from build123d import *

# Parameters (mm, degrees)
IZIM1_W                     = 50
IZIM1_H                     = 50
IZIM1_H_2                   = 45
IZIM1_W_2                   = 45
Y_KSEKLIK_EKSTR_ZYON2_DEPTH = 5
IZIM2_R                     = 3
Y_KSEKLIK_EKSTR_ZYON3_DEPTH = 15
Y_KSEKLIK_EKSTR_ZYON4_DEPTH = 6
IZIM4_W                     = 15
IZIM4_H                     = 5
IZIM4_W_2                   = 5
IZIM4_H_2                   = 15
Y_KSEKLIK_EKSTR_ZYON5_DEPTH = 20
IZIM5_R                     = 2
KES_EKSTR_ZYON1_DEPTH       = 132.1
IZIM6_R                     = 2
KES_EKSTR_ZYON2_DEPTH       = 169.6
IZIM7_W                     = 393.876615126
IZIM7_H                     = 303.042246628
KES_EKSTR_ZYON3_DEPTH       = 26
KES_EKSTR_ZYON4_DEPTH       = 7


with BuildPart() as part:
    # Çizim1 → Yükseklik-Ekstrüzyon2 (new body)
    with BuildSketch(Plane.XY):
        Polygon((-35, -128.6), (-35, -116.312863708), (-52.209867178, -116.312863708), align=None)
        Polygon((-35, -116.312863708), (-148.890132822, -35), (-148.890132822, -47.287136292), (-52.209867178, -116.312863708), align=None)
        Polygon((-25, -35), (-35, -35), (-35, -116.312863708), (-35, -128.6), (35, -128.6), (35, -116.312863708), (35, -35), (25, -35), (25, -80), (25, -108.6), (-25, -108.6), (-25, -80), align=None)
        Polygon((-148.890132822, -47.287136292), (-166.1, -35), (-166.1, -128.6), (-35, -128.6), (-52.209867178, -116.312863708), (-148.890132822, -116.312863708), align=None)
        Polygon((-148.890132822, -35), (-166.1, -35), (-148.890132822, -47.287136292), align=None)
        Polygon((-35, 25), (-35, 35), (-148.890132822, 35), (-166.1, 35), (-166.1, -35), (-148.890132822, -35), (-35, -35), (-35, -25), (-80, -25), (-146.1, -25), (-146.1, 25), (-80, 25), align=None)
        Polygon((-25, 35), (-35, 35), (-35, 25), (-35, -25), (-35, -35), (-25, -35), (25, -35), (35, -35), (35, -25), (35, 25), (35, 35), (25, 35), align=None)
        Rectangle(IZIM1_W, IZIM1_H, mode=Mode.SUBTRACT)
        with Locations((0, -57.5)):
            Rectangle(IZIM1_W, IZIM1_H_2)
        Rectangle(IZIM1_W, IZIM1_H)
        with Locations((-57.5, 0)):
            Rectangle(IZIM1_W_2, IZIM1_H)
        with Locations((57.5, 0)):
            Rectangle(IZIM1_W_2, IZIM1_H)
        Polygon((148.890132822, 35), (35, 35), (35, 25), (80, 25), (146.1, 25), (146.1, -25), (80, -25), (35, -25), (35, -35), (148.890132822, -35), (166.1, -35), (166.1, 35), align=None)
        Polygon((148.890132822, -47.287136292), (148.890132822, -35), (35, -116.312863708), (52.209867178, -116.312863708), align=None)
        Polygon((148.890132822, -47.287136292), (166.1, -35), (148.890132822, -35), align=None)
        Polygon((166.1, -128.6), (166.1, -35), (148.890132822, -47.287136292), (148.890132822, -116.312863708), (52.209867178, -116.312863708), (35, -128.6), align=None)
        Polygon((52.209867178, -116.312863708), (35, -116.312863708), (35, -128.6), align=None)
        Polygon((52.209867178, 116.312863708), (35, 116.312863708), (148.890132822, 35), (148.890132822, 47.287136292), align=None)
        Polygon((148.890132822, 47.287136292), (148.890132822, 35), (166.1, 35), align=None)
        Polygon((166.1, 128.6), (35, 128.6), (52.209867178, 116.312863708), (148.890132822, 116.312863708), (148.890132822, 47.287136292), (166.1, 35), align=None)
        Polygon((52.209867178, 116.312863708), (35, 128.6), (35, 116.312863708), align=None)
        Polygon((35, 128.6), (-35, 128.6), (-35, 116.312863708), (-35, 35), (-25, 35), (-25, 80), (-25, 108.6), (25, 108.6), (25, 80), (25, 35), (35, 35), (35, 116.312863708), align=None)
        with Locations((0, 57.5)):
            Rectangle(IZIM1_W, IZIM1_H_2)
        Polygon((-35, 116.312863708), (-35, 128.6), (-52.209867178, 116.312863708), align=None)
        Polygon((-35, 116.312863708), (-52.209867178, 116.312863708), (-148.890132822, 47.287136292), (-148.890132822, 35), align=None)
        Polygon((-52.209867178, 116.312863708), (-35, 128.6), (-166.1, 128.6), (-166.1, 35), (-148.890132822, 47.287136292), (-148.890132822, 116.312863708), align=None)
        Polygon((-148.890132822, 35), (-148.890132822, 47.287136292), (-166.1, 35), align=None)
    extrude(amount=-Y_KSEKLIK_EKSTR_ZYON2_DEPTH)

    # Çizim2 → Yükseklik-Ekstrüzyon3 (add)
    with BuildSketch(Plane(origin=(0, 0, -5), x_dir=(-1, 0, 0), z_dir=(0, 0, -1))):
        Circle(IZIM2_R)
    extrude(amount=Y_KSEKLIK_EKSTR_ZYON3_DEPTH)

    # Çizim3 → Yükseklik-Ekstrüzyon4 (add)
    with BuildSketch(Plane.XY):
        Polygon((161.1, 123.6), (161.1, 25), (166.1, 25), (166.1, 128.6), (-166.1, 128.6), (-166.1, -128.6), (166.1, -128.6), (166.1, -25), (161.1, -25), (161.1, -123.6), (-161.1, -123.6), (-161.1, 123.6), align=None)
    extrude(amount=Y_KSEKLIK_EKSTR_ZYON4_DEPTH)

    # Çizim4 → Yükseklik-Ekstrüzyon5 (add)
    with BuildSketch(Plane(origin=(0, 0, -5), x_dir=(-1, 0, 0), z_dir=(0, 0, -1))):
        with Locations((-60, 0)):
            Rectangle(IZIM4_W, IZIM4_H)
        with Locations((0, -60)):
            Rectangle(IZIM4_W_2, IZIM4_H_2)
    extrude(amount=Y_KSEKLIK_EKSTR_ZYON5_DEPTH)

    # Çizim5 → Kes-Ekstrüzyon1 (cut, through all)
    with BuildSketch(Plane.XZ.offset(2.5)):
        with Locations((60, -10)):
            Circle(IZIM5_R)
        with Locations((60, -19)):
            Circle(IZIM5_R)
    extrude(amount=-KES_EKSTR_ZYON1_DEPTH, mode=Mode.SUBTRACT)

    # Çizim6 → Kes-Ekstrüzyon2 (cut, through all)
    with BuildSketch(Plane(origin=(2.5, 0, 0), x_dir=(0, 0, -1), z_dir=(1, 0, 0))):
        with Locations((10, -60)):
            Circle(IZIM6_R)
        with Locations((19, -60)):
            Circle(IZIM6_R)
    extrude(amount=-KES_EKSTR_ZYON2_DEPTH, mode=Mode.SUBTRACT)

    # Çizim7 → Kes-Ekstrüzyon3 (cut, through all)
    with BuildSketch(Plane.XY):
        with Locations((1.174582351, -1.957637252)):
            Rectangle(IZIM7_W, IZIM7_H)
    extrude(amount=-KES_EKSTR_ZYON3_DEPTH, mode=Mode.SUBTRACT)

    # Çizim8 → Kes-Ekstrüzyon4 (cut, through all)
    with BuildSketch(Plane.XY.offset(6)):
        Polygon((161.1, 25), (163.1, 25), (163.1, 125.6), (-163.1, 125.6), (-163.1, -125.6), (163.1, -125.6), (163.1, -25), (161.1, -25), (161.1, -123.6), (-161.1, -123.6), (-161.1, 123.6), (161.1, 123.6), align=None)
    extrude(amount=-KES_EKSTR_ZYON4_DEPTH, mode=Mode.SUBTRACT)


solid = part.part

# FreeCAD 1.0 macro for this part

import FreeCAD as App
import Part
import Sketcher


def add_polygon(sketch, points):
    """Adds a closed chain of lines whose ends are joined by coincident constraints."""
    first, n = sketch.GeometryCount, len(points)
    for a, b in zip(points, points[1:] + points[:1]):
        sketch.addGeometry(Part.LineSegment(App.Vector(*a, 0), App.Vector(*b, 0)), False)
    for i in range(n):
        sketch.addConstraint(Sketcher.Constraint("Coincident", first + i, 2, first + (i + 1) % n, 1))

doc = App.newDocument("Part")
body = doc.addObject("PartDesign::Body", "Body")

# Sketch on XY plane
sketch1 = body.newObject("Sketcher::SketchObject", "Sketch")
sketch1.AttachmentSupport = (doc.getObject("XY_Plane"), [""])
sketch1.MapMode = "FlatFace"
add_polygon(sketch1, [(-166, 129), (-166, -129), (166, -129), (166, 129)])  # lines 0-3
add_polygon(sketch1, [(-149, -116), (-149, -47), (-52, -116)])  # lines 4-6
add_polygon(sketch1, [(-149, -35), (-35, -35), (-35, -116)])  # lines 7-9
add_polygon(sketch1, [(-25, -109), (-25, -80), (25, -80), (25, -109)])  # lines 10-13
add_polygon(sketch1, [(149, -116), (52, -116), (149, -47)])  # lines 14-16
add_polygon(sketch1, [(149, -35), (35, -116), (35, -35)])  # lines 17-19
add_polygon(sketch1, [(-146, 25), (-80, 25), (-80, -25), (-146, -25)])  # lines 20-23
add_polygon(sketch1, [(-35, 35), (-149, 35), (-35, 116)])  # lines 24-26
add_polygon(sketch1, [(-52, 116), (-149, 47), (-149, 116)])  # lines 27-29
add_polygon(sketch1, [(80, -25), (80, 25), (146, 25), (146, -25)])  # lines 30-33
add_polygon(sketch1, [(-25, 80), (-25, 109), (25, 109), (25, 80)])  # lines 34-37
add_polygon(sketch1, [(35, 116), (149, 35), (35, 35)])  # lines 38-40
add_polygon(sketch1, [(149, 47), (52, 116), (149, 116)])  # lines 41-43
sketch1.addConstraint([
    Sketcher.Constraint("Vertical", 0),
    Sketcher.Constraint("Horizontal", 1),
    Sketcher.Constraint("Vertical", 2),
    Sketcher.Constraint("Horizontal", 3),
    Sketcher.Constraint("Vertical", 4),
    Sketcher.Constraint("Horizontal", 6),
    Sketcher.Constraint("Horizontal", 7),
    Sketcher.Constraint("Vertical", 8),
    Sketcher.Constraint("Vertical", 10),
    Sketcher.Constraint("Horizontal", 11),
    Sketcher.Constraint("Vertical", 12),
    Sketcher.Constraint("Horizontal", 13),
    Sketcher.Constraint("Horizontal", 14),
    Sketcher.Constraint("Vertical", 16),
    Sketcher.Constraint("Vertical", 18),
    Sketcher.Constraint("Horizontal", 19),
    Sketcher.Constraint("Horizontal", 20),
    Sketcher.Constraint("Vertical", 21),
    Sketcher.Constraint("Horizontal", 22),
    Sketcher.Constraint("Vertical", 23),
    Sketcher.Constraint("Horizontal", 24),
    Sketcher.Constraint("Vertical", 26),
    Sketcher.Constraint("Vertical", 28),
    Sketcher.Constraint("Horizontal", 29),
    Sketcher.Constraint("Vertical", 30),
    Sketcher.Constraint("Horizontal", 31),
    Sketcher.Constraint("Vertical", 32),
    Sketcher.Constraint("Horizontal", 33),
    Sketcher.Constraint("Vertical", 34),
    Sketcher.Constraint("Horizontal", 35),
    Sketcher.Constraint("Vertical", 36),
    Sketcher.Constraint("Horizontal", 37),
    Sketcher.Constraint("Horizontal", 39),
    Sketcher.Constraint("Vertical", 40),
    Sketcher.Constraint("Horizontal", 42),
    Sketcher.Constraint("Vertical", 43),
    Sketcher.Constraint("Symmetric", 0, 2, 2, 2, -1, 1),
    Sketcher.Constraint("Symmetric", 19, 2, 24, 2, -1, 1),
    Sketcher.Constraint("Symmetric", 17, 2, 25, 2, -1, 1),
    Sketcher.Constraint("Symmetric", 15, 2, 27, 2, -1, 1),
    Sketcher.Constraint("Symmetric", 14, 2, 29, 2, -1, 1),
    Sketcher.Constraint("Symmetric", 21, 2, 30, 2, -1, 1),
    Sketcher.Constraint("Symmetric", 23, 2, 32, 2, -1, 1),
    Sketcher.Constraint("Symmetric", 12, 2, 34, 2, -1, 1),
    Sketcher.Constraint("Symmetric", 10, 2, 36, 2, -1, 1),
    Sketcher.Constraint("Symmetric", 9, 2, 38, 2, -1, 1),
    Sketcher.Constraint("Symmetric", 8, 2, 40, 2, -1, 1),
    Sketcher.Constraint("Symmetric", 5, 2, 41, 2, -1, 1),
    Sketcher.Constraint("Symmetric", 4, 2, 43, 2, -1, 1),
    Sketcher.Constraint("Symmetric", 5, 2, 14, 2, -2),
    Sketcher.Constraint("Symmetric", 4, 2, 15, 2, -2),
    Sketcher.Constraint("Symmetric", 8, 2, 17, 2, -2),
    Sketcher.Constraint("Symmetric", 9, 2, 19, 2, -2),
    Sketcher.Constraint("Parallel", 5, 9),
    Sketcher.Constraint("Horizontal", 6, 2, 8, 2),
    Sketcher.Constraint("Horizontal", 23, 2, 30, 2),
    Sketcher.Constraint("Vertical", 6, 2, 9, 2),
    Sketcher.Constraint("Vertical", 13, 2, 34, 2),
    Sketcher.Constraint("Equal", 37, 21),
    Sketcher.Constraint("DistanceX", 11, 1, 11, 2, 50.0),
    Sketcher.Constraint("DistanceX", 1, 1, 1, 2, 332.2),
    Sketcher.Constraint("DistanceX", 20, 1, 20, 2, 66.1),
    Sketcher.Constraint("DistanceY", 0, 2, 0, 1, 257.2),
    Sketcher.Constraint("DistanceY", 10, 1, 10, 2, 28.6),
    Sketcher.Constraint("DistanceX", 7, 2, -1, 1, 35.0),
    Sketcher.Constraint("DistanceY", 7, 2, -1, 1, 35.0),
    Sketcher.Constraint("DistanceY", 10, 2, -1, 1, 80.0),
    Sketcher.Constraint("DistanceX", 20, 2, -1, 1, 80.0),
    Sketcher.Constraint("Distance", 5, 118.79236),
    Sketcher.Constraint("Distance", 9, 139.938358),
    Sketcher.Constraint("DistanceX", 6, 2, 6, 1, 96.680266),
])
pad1 = body.newObject("PartDesign::Pad", "Pad")
pad1.Profile = sketch1
pad1.Length = 5
pad1.Reversed = True

# Sketch on XY plane
sketch2 = body.newObject("Sketcher::SketchObject", "Sketch001")
sketch2.AttachmentSupport = (doc.getObject("XY_Plane"), [""])
sketch2.MapMode = "FlatFace"
sketch2.AttachmentOffset = App.Placement(App.Vector(0, 0, -5), App.Rotation())
sketch2.addGeometry(Part.Circle(App.Vector(0, 0, 0), App.Vector(0, 0, 1), 3), False)
sketch2.addConstraint([
    Sketcher.Constraint("Coincident", 0, 3, -1, 1),
    Sketcher.Constraint("Diameter", 0, 6.0),
])
pad2 = body.newObject("PartDesign::Pad", "Pad001")
pad2.Profile = sketch2
pad2.Length = 15
pad2.Reversed = True

# Sketch on XY plane
sketch3 = body.newObject("Sketcher::SketchObject", "Sketch002")
sketch3.AttachmentSupport = (doc.getObject("XY_Plane"), [""])
sketch3.MapMode = "FlatFace"
add_polygon(sketch3, [(161, 124), (161, 25), (166, 25), (166, 129), (-166, 129), (-166, -129), (166, -129), (166, -25), (161, -25), (161, -124), (-161, -124), (-161, 124)])  # lines 0-11
sketch3.addConstraint([
    Sketcher.Constraint("Vertical", 0),
    Sketcher.Constraint("Horizontal", 1),
    Sketcher.Constraint("Vertical", 2),
    Sketcher.Constraint("Horizontal", 3),
    Sketcher.Constraint("Vertical", 4),
    Sketcher.Constraint("Horizontal", 5),
    Sketcher.Constraint("Vertical", 6),
    Sketcher.Constraint("Horizontal", 7),
    Sketcher.Constraint("Vertical", 8),
    Sketcher.Constraint("Horizontal", 9),
    Sketcher.Constraint("Vertical", 10),
    Sketcher.Constraint("Horizontal", 11),
    Sketcher.Constraint("Symmetric", 2, 2, 4, 2, -1, 1),
    Sketcher.Constraint("Symmetric", 8, 2, 10, 2, -1, 1),
    Sketcher.Constraint("Symmetric", 1, 2, 6, 2, -1),
    Sketcher.Constraint("Vertical", 0, 2, 7, 2),
    Sketcher.Constraint("DistanceX", 1, 1, 1, 2, 5.0),
    Sketcher.Constraint("DistanceX", 3, 2, 3, 1, 332.2),
    Sketcher.Constraint("DistanceY", 0, 2, 0, 1, 98.6),
    Sketcher.Constraint("DistanceY", 2, 1, 2, 2, 103.6),
    Sketcher.Constraint("DistanceY", 4, 2, 4, 1, 257.2),
])
pad3 = body.newObject("PartDesign::Pad", "Pad002")
pad3.Profile = sketch3
pad3.Length = 6

# Sketch on XY plane
sketch4 = body.newObject("Sketcher::SketchObject", "Sketch003")
sketch4.AttachmentSupport = (doc.getObject("XY_Plane"), [""])
sketch4.MapMode = "FlatFace"
sketch4.AttachmentOffset = App.Placement(App.Vector(0, 0, -5), App.Rotation())
add_polygon(sketch4, [(68, 2), (68, -2), (52, -2), (52, 2)])  # lines 0-3
add_polygon(sketch4, [(2, -52), (2, -68), (-2, -68), (-2, -52)])  # lines 4-7
sketch4.addConstraint([
    Sketcher.Constraint("Vertical", 0),
    Sketcher.Constraint("Horizontal", 1),
    Sketcher.Constraint("Vertical", 2),
    Sketcher.Constraint("Horizontal", 3),
    Sketcher.Constraint("Vertical", 4),
    Sketcher.Constraint("Horizontal", 5),
    Sketcher.Constraint("Vertical", 6),
    Sketcher.Constraint("Horizontal", 7),
    Sketcher.Constraint("Equal", 7, 0),
    Sketcher.Constraint("Equal", 3, 4),
    Sketcher.Constraint("DistanceX", 1, 2, 1, 1, 15.0),
    Sketcher.Constraint("DistanceX", 5, 2, 5, 1, 5.0),
    Sketcher.Constraint("DistanceX", 4, 2, 1, 2, 50.0),
    Sketcher.Constraint("DistanceY", 4, 2, 1, 2, 65.0),
    Sketcher.Constraint("DistanceX", -1, 1, 0, 2, 67.5),
    Sketcher.Constraint("DistanceY", 0, 2, -1, 1, 2.5),
])
pad4 = body.newObject("PartDesign::Pad", "Pad003")
pad4.Profile = sketch4
pad4.Length = 20
pad4.Reversed = True

# Sketch on XZ plane
sketch5 = body.newObject("Sketcher::SketchObject", "Sketch004")
sketch5.AttachmentSupport = (doc.getObject("XZ_Plane"), [""])
sketch5.MapMode = "FlatFace"
sketch5.AttachmentOffset = App.Placement(App.Vector(0, 0, 2.5), App.Rotation())
sketch5.addGeometry([
    Part.Circle(App.Vector(60, -10, 0), App.Vector(0, 0, 1), 2),
    Part.Circle(App.Vector(60, -19, 0), App.Vector(0, 0, 1), 2),
], False)
sketch5.addConstraint([
    Sketcher.Constraint("Equal", 0, 1),
    Sketcher.Constraint("Vertical", 0, 3, 1, 3),
    Sketcher.Constraint("Diameter", 0, 4.0),
    Sketcher.Constraint("DistanceX", -1, 1, 0, 3, 60.0),
    Sketcher.Constraint("DistanceY", 0, 3, -1, 1, 10.0),
    Sketcher.Constraint("DistanceY", 1, 3, -1, 1, 19.0),
])
pocket1 = body.newObject("PartDesign::Pocket", "Pocket")
pocket1.Profile = sketch5
pocket1.Type = "ThroughAll"

# Sketch on YZ plane
sketch6 = body.newObject("Sketcher::SketchObject", "Sketch005")
sketch6.AttachmentSupport = (doc.getObject("YZ_Plane"), [""])
sketch6.MapMode = "FlatFace"
sketch6.AttachmentOffset = App.Placement(App.Vector(0, 0, 2.5), App.Rotation())
sketch6.addGeometry([
    Part.Circle(App.Vector(-60, -10, 0), App.Vector(0, 0, 1), 2),
    Part.Circle(App.Vector(-60, -19, 0), App.Vector(0, 0, 1), 2),
], False)
sketch6.addConstraint([
    Sketcher.Constraint("Equal", 0, 1),
    Sketcher.Constraint("Vertical", 0, 3, 1, 3),
    Sketcher.Constraint("Diameter", 0, 4.0),
    Sketcher.Constraint("DistanceX", 0, 3, -1, 1, 60.0),
    Sketcher.Constraint("DistanceY", 0, 3, -1, 1, 10.0),
    Sketcher.Constraint("DistanceY", 1, 3, -1, 1, 19.0),
])
pocket2 = body.newObject("PartDesign::Pocket", "Pocket001")
pocket2.Profile = sketch6
pocket2.Type = "ThroughAll"

# Sketch on XY plane
sketch7 = body.newObject("Sketcher::SketchObject", "Sketch006")
sketch7.AttachmentSupport = (doc.getObject("XY_Plane"), [""])
sketch7.MapMode = "FlatFace"
add_polygon(sketch7, [(-196, 150), (-196, -153), (198, -153), (198, 150)])  # lines 0-3
sketch7.addConstraint([
    Sketcher.Constraint("Vertical", 0),
    Sketcher.Constraint("Horizontal", 1),
    Sketcher.Constraint("Vertical", 2),
    Sketcher.Constraint("Horizontal", 3),
    Sketcher.Constraint("DistanceX", 1, 1, 1, 2, 393.876615),
    Sketcher.Constraint("DistanceY", 0, 2, 0, 1, 303.042247),
    Sketcher.Constraint("DistanceY", 0, 2, -1, 1, 153.478761),
    Sketcher.Constraint("DistanceX", -1, 1, 1, 2, 198.11289),
])
pocket3 = body.newObject("PartDesign::Pocket", "Pocket002")
pocket3.Profile = sketch7
pocket3.Type = "ThroughAll"

# Sketch on XY plane
sketch8 = body.newObject("Sketcher::SketchObject", "Sketch007")
sketch8.AttachmentSupport = (doc.getObject("XY_Plane"), [""])
sketch8.MapMode = "FlatFace"
sketch8.AttachmentOffset = App.Placement(App.Vector(0, 0, 6), App.Rotation())
add_polygon(sketch8, [(161.1, 25), (163.1, 25), (163.1, 125.6), (-163.1, 125.6), (-163.1, -125.6), (163.1, -125.6), (163.1, -25), (161.1, -25), (161.1, -123.6), (-161.1, -123.6), (-161.1, 123.6), (161.1, 123.6)])  # lines 0-11
sketch8.addConstraint([
    Sketcher.Constraint("Horizontal", 0),
    Sketcher.Constraint("Vertical", 1),
    Sketcher.Constraint("Horizontal", 2),
    Sketcher.Constraint("Vertical", 3),
    Sketcher.Constraint("Horizontal", 4),
    Sketcher.Constraint("Vertical", 5),
    Sketcher.Constraint("Horizontal", 6),
    Sketcher.Constraint("Vertical", 7),
    Sketcher.Constraint("Horizontal", 8),
    Sketcher.Constraint("Vertical", 9),
    Sketcher.Constraint("Horizontal", 10),
    Sketcher.Constraint("Vertical", 11),
    Sketcher.Constraint("Symmetric", 1, 2, 3, 2, -1, 1),
    Sketcher.Constraint("Symmetric", 7, 2, 9, 2, -1, 1),
    Sketcher.Constraint("Symmetric", 0, 2, 5, 2, -1),
    Sketcher.Constraint("Vertical", 7, 2, 10, 2),
    Sketcher.Constraint("DistanceX", 0, 1, 0, 2, 2.0),
    Sketcher.Constraint("DistanceX", 2, 2, 2, 1, 326.2),
    Sketcher.Constraint("DistanceY", 1, 1, 1, 2, 100.6),
    Sketcher.Constraint("DistanceY", 3, 2, 3, 1, 251.2),
    Sketcher.Constraint("DistanceY", 7, 2, 7, 1, 98.6),
])
pocket4 = body.newObject("PartDesign::Pocket", "Pocket003")
pocket4.Profile = sketch8
pocket4.Type = "ThroughAll"

doc.recompute()
